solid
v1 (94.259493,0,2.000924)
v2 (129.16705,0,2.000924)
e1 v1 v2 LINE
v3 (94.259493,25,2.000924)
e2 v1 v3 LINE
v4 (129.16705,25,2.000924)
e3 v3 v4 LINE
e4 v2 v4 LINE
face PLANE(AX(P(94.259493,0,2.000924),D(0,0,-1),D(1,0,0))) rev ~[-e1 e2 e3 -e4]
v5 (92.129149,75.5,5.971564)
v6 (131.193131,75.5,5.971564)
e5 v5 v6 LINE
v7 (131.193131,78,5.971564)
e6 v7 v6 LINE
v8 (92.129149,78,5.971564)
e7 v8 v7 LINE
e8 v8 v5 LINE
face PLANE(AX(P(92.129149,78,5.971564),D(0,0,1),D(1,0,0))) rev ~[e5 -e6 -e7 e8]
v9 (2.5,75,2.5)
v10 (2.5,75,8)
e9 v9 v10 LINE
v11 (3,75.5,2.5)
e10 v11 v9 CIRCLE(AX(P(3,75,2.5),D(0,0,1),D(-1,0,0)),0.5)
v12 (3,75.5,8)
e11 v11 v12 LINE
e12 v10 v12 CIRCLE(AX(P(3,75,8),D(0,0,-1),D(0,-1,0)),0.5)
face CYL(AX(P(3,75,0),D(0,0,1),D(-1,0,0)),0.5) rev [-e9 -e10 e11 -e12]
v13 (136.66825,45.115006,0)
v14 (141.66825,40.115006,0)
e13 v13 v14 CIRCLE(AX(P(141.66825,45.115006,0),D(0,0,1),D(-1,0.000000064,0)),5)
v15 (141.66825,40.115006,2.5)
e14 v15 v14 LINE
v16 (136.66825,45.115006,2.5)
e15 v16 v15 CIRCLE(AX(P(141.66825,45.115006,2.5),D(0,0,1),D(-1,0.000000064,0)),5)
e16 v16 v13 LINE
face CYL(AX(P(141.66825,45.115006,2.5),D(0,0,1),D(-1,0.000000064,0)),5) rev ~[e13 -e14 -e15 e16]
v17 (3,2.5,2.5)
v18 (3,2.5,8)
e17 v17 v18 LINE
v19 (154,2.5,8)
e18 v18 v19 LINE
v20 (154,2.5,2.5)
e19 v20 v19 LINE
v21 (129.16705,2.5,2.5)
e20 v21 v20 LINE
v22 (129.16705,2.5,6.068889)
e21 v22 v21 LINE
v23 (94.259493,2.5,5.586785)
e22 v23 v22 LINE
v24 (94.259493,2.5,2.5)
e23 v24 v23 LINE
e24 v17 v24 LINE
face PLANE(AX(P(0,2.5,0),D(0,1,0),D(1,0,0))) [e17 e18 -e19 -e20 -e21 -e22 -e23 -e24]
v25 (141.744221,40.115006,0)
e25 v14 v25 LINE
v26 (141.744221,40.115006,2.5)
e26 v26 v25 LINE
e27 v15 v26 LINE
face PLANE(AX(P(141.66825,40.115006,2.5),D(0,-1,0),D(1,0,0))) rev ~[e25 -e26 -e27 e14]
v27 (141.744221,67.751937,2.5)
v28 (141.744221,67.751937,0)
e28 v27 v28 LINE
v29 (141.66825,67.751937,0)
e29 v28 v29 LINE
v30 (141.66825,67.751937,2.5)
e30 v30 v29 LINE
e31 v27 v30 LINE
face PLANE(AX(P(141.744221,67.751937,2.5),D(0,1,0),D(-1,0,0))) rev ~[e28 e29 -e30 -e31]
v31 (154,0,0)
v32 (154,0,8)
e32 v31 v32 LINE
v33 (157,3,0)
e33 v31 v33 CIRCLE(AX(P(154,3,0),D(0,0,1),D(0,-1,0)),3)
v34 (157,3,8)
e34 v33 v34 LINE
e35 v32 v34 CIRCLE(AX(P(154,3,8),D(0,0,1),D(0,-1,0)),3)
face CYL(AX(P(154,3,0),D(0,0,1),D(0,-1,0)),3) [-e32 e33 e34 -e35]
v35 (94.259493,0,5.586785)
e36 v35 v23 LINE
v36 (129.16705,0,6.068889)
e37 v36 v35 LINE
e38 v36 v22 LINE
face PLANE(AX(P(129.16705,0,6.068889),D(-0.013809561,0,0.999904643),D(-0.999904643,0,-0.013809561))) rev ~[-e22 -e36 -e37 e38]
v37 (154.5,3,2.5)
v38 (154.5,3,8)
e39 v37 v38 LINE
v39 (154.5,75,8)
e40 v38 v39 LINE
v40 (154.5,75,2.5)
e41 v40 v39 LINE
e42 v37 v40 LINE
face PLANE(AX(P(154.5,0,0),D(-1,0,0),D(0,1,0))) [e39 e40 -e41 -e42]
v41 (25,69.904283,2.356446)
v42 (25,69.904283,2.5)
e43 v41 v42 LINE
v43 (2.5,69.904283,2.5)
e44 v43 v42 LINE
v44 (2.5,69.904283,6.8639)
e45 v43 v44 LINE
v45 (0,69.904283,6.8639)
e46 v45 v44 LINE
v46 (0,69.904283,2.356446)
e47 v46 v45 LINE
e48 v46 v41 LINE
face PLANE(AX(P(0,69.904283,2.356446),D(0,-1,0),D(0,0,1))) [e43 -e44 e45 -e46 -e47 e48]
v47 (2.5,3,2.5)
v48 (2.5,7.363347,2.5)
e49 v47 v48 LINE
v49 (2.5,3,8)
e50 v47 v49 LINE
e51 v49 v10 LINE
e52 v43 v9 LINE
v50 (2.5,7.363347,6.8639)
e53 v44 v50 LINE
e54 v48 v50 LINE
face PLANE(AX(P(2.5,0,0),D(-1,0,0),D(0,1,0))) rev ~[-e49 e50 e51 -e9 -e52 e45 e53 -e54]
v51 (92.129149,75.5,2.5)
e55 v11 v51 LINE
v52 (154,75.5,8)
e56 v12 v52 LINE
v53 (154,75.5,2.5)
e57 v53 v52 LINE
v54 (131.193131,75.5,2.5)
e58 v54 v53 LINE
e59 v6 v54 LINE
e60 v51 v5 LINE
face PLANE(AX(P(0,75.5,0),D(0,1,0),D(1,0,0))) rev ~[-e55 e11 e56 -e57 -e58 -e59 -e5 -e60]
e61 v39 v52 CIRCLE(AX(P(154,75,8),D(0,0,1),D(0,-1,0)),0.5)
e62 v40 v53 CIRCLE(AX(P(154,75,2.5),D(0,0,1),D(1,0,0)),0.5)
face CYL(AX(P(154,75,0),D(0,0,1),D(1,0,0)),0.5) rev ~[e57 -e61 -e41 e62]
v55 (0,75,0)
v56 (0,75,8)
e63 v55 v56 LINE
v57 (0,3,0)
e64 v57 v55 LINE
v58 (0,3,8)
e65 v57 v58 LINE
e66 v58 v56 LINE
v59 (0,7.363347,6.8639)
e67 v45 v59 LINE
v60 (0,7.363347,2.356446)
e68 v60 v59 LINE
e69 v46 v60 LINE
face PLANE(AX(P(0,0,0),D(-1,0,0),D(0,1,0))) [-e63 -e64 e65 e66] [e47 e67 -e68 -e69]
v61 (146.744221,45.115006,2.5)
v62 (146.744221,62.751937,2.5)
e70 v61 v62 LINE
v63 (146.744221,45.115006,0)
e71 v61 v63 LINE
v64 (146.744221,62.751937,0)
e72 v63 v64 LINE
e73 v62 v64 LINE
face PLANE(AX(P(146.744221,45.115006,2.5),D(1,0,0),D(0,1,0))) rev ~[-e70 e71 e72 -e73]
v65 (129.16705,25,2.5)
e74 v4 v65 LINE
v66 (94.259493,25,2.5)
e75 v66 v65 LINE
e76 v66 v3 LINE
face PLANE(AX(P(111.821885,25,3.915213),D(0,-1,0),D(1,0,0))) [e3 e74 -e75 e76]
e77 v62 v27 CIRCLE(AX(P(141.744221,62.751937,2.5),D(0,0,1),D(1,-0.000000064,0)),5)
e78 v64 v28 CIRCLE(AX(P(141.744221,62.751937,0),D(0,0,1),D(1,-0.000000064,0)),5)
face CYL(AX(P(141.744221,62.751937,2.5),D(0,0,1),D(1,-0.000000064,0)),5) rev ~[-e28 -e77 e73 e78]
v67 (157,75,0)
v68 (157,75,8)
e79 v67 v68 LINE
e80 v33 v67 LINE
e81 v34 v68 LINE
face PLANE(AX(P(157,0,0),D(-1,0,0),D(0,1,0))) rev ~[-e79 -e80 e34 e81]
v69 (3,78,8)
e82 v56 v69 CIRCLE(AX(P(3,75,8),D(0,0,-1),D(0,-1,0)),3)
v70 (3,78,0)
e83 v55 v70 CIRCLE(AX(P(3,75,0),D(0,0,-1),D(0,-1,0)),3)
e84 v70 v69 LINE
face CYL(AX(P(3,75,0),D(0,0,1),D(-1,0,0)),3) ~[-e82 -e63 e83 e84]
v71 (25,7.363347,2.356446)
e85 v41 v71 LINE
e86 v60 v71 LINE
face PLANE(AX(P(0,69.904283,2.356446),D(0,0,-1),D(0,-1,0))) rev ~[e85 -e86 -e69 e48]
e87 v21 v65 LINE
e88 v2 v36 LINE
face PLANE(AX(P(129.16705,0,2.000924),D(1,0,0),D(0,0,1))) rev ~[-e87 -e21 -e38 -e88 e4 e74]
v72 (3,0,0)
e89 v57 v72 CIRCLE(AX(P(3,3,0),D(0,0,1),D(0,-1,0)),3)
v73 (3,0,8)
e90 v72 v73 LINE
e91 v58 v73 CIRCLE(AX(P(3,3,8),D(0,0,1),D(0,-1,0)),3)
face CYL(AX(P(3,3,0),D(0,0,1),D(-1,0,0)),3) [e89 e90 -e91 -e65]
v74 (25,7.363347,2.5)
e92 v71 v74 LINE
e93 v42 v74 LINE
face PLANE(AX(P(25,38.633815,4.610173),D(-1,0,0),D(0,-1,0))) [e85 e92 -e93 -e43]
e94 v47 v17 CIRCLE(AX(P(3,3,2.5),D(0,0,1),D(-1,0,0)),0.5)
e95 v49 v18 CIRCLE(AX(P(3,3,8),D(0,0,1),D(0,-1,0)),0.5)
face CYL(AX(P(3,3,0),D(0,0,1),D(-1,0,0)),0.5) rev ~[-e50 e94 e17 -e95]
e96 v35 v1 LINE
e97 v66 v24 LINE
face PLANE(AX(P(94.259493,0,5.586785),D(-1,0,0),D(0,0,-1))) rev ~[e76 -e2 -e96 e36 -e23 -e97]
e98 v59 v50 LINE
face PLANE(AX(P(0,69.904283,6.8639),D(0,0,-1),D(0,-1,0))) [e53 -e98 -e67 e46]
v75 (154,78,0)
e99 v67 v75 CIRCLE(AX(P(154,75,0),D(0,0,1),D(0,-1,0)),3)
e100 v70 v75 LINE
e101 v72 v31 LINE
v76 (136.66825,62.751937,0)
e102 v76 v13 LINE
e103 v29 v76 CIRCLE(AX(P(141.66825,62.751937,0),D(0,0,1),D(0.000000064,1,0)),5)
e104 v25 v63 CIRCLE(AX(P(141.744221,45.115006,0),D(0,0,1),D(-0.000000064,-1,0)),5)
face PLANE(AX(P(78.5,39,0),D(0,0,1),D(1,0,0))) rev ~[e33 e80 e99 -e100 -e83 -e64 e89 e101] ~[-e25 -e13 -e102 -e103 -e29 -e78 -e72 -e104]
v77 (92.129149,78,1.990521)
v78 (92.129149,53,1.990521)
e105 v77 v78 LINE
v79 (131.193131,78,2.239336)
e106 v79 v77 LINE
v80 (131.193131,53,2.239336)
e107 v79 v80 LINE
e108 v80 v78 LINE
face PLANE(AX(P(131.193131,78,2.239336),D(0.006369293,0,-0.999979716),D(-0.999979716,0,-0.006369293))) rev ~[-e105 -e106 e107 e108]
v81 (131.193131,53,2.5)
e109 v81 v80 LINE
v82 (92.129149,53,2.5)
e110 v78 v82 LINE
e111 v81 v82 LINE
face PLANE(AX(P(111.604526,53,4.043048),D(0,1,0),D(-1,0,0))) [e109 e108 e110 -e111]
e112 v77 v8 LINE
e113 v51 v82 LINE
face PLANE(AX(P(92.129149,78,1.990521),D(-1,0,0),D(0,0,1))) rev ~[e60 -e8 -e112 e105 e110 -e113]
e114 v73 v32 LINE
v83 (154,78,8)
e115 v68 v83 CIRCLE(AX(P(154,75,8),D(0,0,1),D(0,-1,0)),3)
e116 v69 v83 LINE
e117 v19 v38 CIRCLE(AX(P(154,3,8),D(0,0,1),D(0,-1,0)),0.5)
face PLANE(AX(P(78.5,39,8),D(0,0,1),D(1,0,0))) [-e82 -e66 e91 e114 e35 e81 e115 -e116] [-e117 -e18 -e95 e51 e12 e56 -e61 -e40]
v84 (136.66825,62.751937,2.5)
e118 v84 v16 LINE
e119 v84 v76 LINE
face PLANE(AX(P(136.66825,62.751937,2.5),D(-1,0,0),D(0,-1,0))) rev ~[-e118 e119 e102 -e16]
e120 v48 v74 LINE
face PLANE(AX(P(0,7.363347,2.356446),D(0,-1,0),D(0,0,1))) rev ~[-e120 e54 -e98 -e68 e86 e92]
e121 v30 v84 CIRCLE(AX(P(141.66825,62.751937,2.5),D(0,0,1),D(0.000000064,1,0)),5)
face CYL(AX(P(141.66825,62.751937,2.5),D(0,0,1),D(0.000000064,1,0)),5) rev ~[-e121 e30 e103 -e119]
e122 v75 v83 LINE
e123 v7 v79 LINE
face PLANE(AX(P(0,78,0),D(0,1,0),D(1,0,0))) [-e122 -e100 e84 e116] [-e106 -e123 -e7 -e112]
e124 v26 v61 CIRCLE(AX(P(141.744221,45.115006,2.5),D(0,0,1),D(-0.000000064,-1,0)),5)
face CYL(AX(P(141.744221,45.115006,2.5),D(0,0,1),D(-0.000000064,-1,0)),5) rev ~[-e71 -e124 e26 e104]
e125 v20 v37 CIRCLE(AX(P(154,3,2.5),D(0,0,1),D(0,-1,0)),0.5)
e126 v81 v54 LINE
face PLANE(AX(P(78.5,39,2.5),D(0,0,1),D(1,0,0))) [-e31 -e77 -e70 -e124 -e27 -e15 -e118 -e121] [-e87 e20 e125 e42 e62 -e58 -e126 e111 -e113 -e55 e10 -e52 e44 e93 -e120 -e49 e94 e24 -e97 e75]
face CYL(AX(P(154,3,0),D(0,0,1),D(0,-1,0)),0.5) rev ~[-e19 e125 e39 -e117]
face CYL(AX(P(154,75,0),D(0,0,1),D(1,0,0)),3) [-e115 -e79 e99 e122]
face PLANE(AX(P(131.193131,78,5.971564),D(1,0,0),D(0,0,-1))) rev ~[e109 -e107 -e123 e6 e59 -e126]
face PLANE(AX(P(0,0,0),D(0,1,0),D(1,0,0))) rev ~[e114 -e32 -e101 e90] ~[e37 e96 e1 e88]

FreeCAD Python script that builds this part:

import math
import FreeCAD as App
import Part
import Sketcher

V = App.Vector


def edges_at(feature, points):
    """Names of the edges that pass closest to the given points."""
    edges = feature.Shape.Edges
    near = lambda p: min(range(len(edges)), key=lambda i: edges[i].distToShape(Part.Vertex(*p))[0])
    return sorted({f"Edge{near(p) + 1}" for p in points})


def faces_at(feature, points):
    """Names of the faces that lie closest to the given points."""
    faces = feature.Shape.Faces
    near = lambda p: min(range(len(faces)), key=lambda i: faces[i].distToShape(Part.Vertex(*p))[0])
    return sorted({f"Face{near(p) + 1}" for p in points})

doc = App.newDocument("Part")
params = doc.addObject("Spreadsheet::Sheet", "Params")
for row, (alias, value) in enumerate([
    ("sketch1_width", "157 mm"),
    ("sketch1_height", "78 mm"),
    ("pad1_length", "8 mm"),
    ("fillet_radius", "3 mm"),
    ("thickness_wall", "2.5 mm"),
    ("sketch2_radius", "5 mm"),
    ("pocket1_length", "25 mm"),
    ("pocket2_length", "25 mm"),
    ("pocket3_length", "25 mm"),
    ("pocket4_length", "25 mm"),
], start=1):
    params.set(f"A{row}", alias)
    params.set(f"B{row}", "=" + value)
    params.setAlias(f"B{row}", alias)

body = doc.addObject("PartDesign::Body", "Body")

# Sketch on XY plane
sketch1 = body.newObject("Sketcher::SketchObject", "Sketch")
sketch1.AttachmentSupport = (doc.getObject("XY_Plane"), [""])
sketch1.MapMode = "FlatFace"
sketch1.addGeometry(Part.LineSegment(V(0, 78, 0), V(0, 0, 0)), False)
sketch1.addGeometry(Part.LineSegment(V(0, 0, 0), V(157, 0, 0)), False)
sketch1.addGeometry(Part.LineSegment(V(157, 0, 0), V(157, 78, 0)), False)
sketch1.addGeometry(Part.LineSegment(V(157, 78, 0), V(0, 78, 0)), False)
sketch1.addConstraint(Sketcher.Constraint("Coincident", 0, 2, 1, 1))
sketch1.addConstraint(Sketcher.Constraint("Coincident", 1, 2, 2, 1))
sketch1.addConstraint(Sketcher.Constraint("Coincident", 2, 2, 3, 1))
sketch1.addConstraint(Sketcher.Constraint("Coincident", 3, 2, 0, 1))
sketch1.addConstraint(Sketcher.Constraint("Vertical", 0))
sketch1.addConstraint(Sketcher.Constraint("Horizontal", 1))
sketch1.addConstraint(Sketcher.Constraint("Vertical", 2))
sketch1.addConstraint(Sketcher.Constraint("Horizontal", 3))
sketch1.addConstraint(Sketcher.Constraint("Coincident", 0, 2, -1, 1))
sketch1.addConstraint(Sketcher.Constraint("DistanceX", 1, 1, 1, 2, 157.0))
sketch1.addConstraint(Sketcher.Constraint("DistanceY", 0, 2, 0, 1, 78.0))
sketch1.setExpression("Constraints[9]", "Params.sketch1_width")
sketch1.setExpression("Constraints[10]", "Params.sketch1_height")
pad1 = body.newObject("PartDesign::Pad", "Pad")
pad1.Profile = sketch1
pad1.setExpression("Length", "Params.pad1_length")
doc.recompute()

fillet = body.newObject("PartDesign::Fillet", "Fillet")
fillet.Base = (pad1, edges_at(pad1, [
    (157, 0, 4),
    (157, 78, 4),
    (0, 78, 4),
    (0, 0, 4),
]))
fillet.setExpression("Radius", "Params.fillet_radius")
doc.recompute()

thickness = body.newObject("PartDesign::Thickness", "Thickness")
thickness.Base = (fillet, faces_at(fillet, [(78.5, 39, 8)]))
thickness.setExpression("Value", "Params.thickness_wall")
thickness.Reversed = True
thickness.Join = "Arc"

# Sketch on XY plane
sketch2 = body.newObject("Sketcher::SketchObject", "Sketch001")
sketch2.AttachmentSupport = (doc.getObject("XY_Plane"), [""])
sketch2.MapMode = "FlatFace"
sketch2.AttachmentOffset = App.Placement(V(0, 0, 2.5), App.Rotation())
sketch2.addGeometry(Part.ArcOfCircle(Part.Circle(V(141.74, 62.75, 0), V(0, 0, 1), 5), math.radians(0), math.radians(90)), False)
sketch2.addGeometry(Part.LineSegment(V(141.74, 67.75, 0), V(141.67, 67.75, 0)), False)
sketch2.addGeometry(Part.ArcOfCircle(Part.Circle(V(141.67, 62.75, 0), V(0, 0, 1), 5), math.radians(90), math.radians(180)), False)
sketch2.addGeometry(Part.LineSegment(V(136.67, 62.75, 0), V(136.67, 45.12, 0)), False)
sketch2.addGeometry(Part.ArcOfCircle(Part.Circle(V(141.67, 45.12, 0), V(0, 0, 1), 5), math.radians(180), math.radians(270)), False)
sketch2.addGeometry(Part.LineSegment(V(141.67, 40.12, 0), V(141.74, 40.12, 0)), False)
sketch2.addGeometry(Part.ArcOfCircle(Part.Circle(V(141.74, 45.12, 0), V(0, 0, 1), 5), math.radians(-90), math.radians(0)), False)
sketch2.addGeometry(Part.LineSegment(V(146.74, 45.12, 0), V(146.74, 62.75, 0)), False)
sketch2.addConstraint(Sketcher.Constraint("Tangent", 0, 2, 1, 1))
sketch2.addConstraint(Sketcher.Constraint("Tangent", 1, 2, 2, 1))
sketch2.addConstraint(Sketcher.Constraint("Tangent", 2, 2, 3, 1))
sketch2.addConstraint(Sketcher.Constraint("Tangent", 3, 2, 4, 1))
sketch2.addConstraint(Sketcher.Constraint("Tangent", 4, 2, 5, 1))
sketch2.addConstraint(Sketcher.Constraint("Tangent", 5, 2, 6, 1))
sketch2.addConstraint(Sketcher.Constraint("Tangent", 6, 2, 7, 1))
sketch2.addConstraint(Sketcher.Constraint("Tangent", 7, 2, 0, 1))
sketch2.addConstraint(Sketcher.Constraint("Horizontal", 1))
sketch2.addConstraint(Sketcher.Constraint("Vertical", 3))
sketch2.addConstraint(Sketcher.Constraint("Horizontal", 5))
sketch2.addConstraint(Sketcher.Constraint("Vertical", 7))
sketch2.addConstraint(Sketcher.Constraint("Equal", 0, 2))
sketch2.addConstraint(Sketcher.Constraint("Equal", 2, 4))
sketch2.addConstraint(Sketcher.Constraint("Equal", 4, 6))
sketch2.addConstraint(Sketcher.Constraint("Radius", 0, 5.0))
sketch2.addConstraint(Sketcher.Constraint("DistanceX", 1, 2, 1, 1, 0.075971))
sketch2.addConstraint(Sketcher.Constraint("DistanceY", 3, 2, 3, 1, 17.636931))
sketch2.addConstraint(Sketcher.Constraint("DistanceX", -1, 1, 0, 3, 141.744221))
sketch2.addConstraint(Sketcher.Constraint("DistanceY", -1, 1, 0, 3, 62.751937))
sketch2.setExpression("Constraints[15]", "Params.sketch2_radius")
pocket1 = body.newObject("PartDesign::Pocket", "Pocket")
pocket1.Profile = sketch2
pocket1.setExpression("Length", "Params.pocket1_length")

# Sketch on YZ plane
sketch3 = body.newObject("Sketcher::SketchObject", "Sketch002")
sketch3.AttachmentSupport = (doc.getObject("YZ_Plane"), [""])
sketch3.MapMode = "FlatFace"
sketch3.addGeometry(Part.LineSegment(V(69.9, 6.9, 0), V(69.9, 2.4, 0)), False)
sketch3.addGeometry(Part.LineSegment(V(69.9, 2.4, 0), V(7.4, 2.4, 0)), False)
sketch3.addGeometry(Part.LineSegment(V(7.4, 2.4, 0), V(7.4, 6.9, 0)), False)
sketch3.addGeometry(Part.LineSegment(V(7.4, 6.9, 0), V(69.9, 6.9, 0)), False)
sketch3.addConstraint(Sketcher.Constraint("Coincident", 0, 2, 1, 1))
sketch3.addConstraint(Sketcher.Constraint("Coincident", 1, 2, 2, 1))
sketch3.addConstraint(Sketcher.Constraint("Coincident", 2, 2, 3, 1))
sketch3.addConstraint(Sketcher.Constraint("Coincident", 3, 2, 0, 1))
sketch3.addConstraint(Sketcher.Constraint("Vertical", 0))
sketch3.addConstraint(Sketcher.Constraint("Horizontal", 1))
sketch3.addConstraint(Sketcher.Constraint("Vertical", 2))
sketch3.addConstraint(Sketcher.Constraint("Horizontal", 3))
sketch3.addConstraint(Sketcher.Constraint("DistanceY", -1, 1, 2, 2, 6.8639))
sketch3.addConstraint(Sketcher.Constraint("DistanceX", 1, 2, 1, 1, 62.540936))
sketch3.addConstraint(Sketcher.Constraint("DistanceY", 0, 2, 0, 1, 4.507454))
sketch3.addConstraint(Sketcher.Constraint("DistanceX", -1, 1, 0, 2, 69.904283))
pocket2 = body.newObject("PartDesign::Pocket", "Pocket001")
pocket2.Profile = sketch3
pocket2.setExpression("Length", "Params.pocket2_length")
pocket2.Reversed = True

# Sketch on XZ plane
sketch4 = body.newObject("Sketcher::SketchObject", "Sketch003")
sketch4.AttachmentSupport = (doc.getObject("XZ_Plane"), [""])
sketch4.MapMode = "FlatFace"
sketch4.addGeometry(Part.LineSegment(V(129.2, 6.1, 0), V(94.3, 5.6, 0)), False)
sketch4.addGeometry(Part.LineSegment(V(94.3, 5.6, 0), V(94.3, 2, 0)), False)
sketch4.addGeometry(Part.LineSegment(V(94.3, 2, 0), V(129.2, 2, 0)), False)
sketch4.addGeometry(Part.LineSegment(V(129.2, 2, 0), V(129.2, 6.1, 0)), False)
sketch4.addConstraint(Sketcher.Constraint("Coincident", 0, 2, 1, 1))
sketch4.addConstraint(Sketcher.Constraint("Coincident", 1, 2, 2, 1))
sketch4.addConstraint(Sketcher.Constraint("Coincident", 2, 2, 3, 1))
sketch4.addConstraint(Sketcher.Constraint("Coincident", 3, 2, 0, 1))
sketch4.addConstraint(Sketcher.Constraint("Vertical", 1))
sketch4.addConstraint(Sketcher.Constraint("Horizontal", 2))
sketch4.addConstraint(Sketcher.Constraint("Vertical", 3))
sketch4.addConstraint(Sketcher.Constraint("DistanceY", 1, 2, 1, 1, 3.585861))
sketch4.addConstraint(Sketcher.Constraint("DistanceX", 2, 1, 2, 2, 34.907557))
sketch4.addConstraint(Sketcher.Constraint("DistanceY", 3, 1, 3, 2, 4.067965))
sketch4.addConstraint(Sketcher.Constraint("DistanceX", -1, 1, 2, 2, 129.16705))
sketch4.addConstraint(Sketcher.Constraint("DistanceY", -1, 1, 3, 2, 6.068889))
pocket3 = body.newObject("PartDesign::Pocket", "Pocket002")
pocket3.Profile = sketch4
pocket3.setExpression("Length", "Params.pocket3_length")

# Sketch on XZ plane
sketch5 = body.newObject("Sketcher::SketchObject", "Sketch004")
sketch5.AttachmentSupport = (doc.getObject("XZ_Plane"), [""])
sketch5.MapMode = "FlatFace"
sketch5.AttachmentOffset = App.Placement(V(0, 0, -78), App.Rotation())
sketch5.addGeometry(Part.LineSegment(V(131.2, 2.2, 0), V(92.1, 2, 0)), False)
sketch5.addGeometry(Part.LineSegment(V(92.1, 2, 0), V(92.1, 6, 0)), False)
sketch5.addGeometry(Part.LineSegment(V(92.1, 6, 0), V(131.2, 6, 0)), False)
sketch5.addGeometry(Part.LineSegment(V(131.2, 6, 0), V(131.2, 2.2, 0)), False)
sketch5.addConstraint(Sketcher.Constraint("Coincident", 0, 2, 1, 1))
sketch5.addConstraint(Sketcher.Constraint("Coincident", 1, 2, 2, 1))
sketch5.addConstraint(Sketcher.Constraint("Coincident", 2, 2, 3, 1))
sketch5.addConstraint(Sketcher.Constraint("Coincident", 3, 2, 0, 1))
sketch5.addConstraint(Sketcher.Constraint("Vertical", 1))
sketch5.addConstraint(Sketcher.Constraint("Horizontal", 2))
sketch5.addConstraint(Sketcher.Constraint("Vertical", 3))
sketch5.addConstraint(Sketcher.Constraint("DistanceX", 2, 1, 2, 2, 39.063982))
sketch5.addConstraint(Sketcher.Constraint("DistanceY", 1, 1, 1, 2, 3.981043))
sketch5.addConstraint(Sketcher.Constraint("DistanceY", 3, 2, 3, 1, 3.732228))
sketch5.addConstraint(Sketcher.Constraint("DistanceX", -1, 1, 0, 2, 92.129149))
sketch5.addConstraint(Sketcher.Constraint("DistanceY", -1, 1, 0, 2, 1.990521))
pocket4 = body.newObject("PartDesign::Pocket", "Pocket003")
pocket4.Profile = sketch5
pocket4.setExpression("Length", "Params.pocket4_length")
pocket4.Reversed = True

doc.recompute()
